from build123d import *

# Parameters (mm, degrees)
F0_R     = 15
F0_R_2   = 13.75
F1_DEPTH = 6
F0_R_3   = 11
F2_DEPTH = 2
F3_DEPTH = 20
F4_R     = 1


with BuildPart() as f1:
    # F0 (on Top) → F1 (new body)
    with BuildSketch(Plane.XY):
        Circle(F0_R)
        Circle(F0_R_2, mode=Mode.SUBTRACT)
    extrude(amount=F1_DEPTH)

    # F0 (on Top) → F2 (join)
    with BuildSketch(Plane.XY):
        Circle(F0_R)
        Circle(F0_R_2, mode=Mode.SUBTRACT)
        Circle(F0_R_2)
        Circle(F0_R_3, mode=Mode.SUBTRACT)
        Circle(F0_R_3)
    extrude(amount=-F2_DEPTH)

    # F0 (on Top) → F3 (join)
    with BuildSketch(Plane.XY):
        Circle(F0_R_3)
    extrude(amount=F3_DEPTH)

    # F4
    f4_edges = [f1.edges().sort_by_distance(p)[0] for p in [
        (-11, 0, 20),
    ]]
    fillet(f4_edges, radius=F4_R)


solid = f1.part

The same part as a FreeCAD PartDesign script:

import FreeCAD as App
import Part
import Sketcher

V = App.Vector
Q = App.Units.Quantity


def edges_at(feature, points):
    """Names of the edges that pass closest to the given points."""
    edges = feature.Shape.Edges
    near = lambda p: min(range(len(edges)), key=lambda i: edges[i].distToShape(Part.Vertex(*p))[0])
    return sorted({f"Edge{near(p) + 1}" for p in points})

doc = App.newDocument("Part")
body = doc.addObject("PartDesign::Body", "Body")

# Sketch on XY plane
sketch1 = body.newObject("Sketcher::SketchObject", "Sketch")
sketch1.AttachmentSupport = (doc.getObject("XY_Plane"), [""])
sketch1.MapMode = "FlatFace"
sketch1.addGeometry(Part.Circle(V(0, 0, 0), V(0, 0, 1), 15), False)
sketch1.addGeometry(Part.Circle(V(0, 0, 0), V(0, 0, 1), 14), False)
sketch1.addConstraint(Sketcher.Constraint("Coincident", 0, 3, -1, 1))
sketch1.addConstraint(Sketcher.Constraint("Coincident", 1, 3, -1, 1))
sketch1.addConstraint(Sketcher.Constraint("Diameter", 0, Q("30 mm")))
sketch1.addConstraint(Sketcher.Constraint("Diameter", 1, Q("27.5 mm")))
pad1 = body.newObject("PartDesign::Pad", "Pad")
pad1.Profile = sketch1
pad1.Length = 6

# Sketch on XY plane
sketch2 = body.newObject("Sketcher::SketchObject", "Sketch001")
sketch2.AttachmentSupport = (doc.getObject("XY_Plane"), [""])
sketch2.MapMode = "FlatFace"
sketch2.addGeometry(Part.Circle(V(0, 0, 0), V(0, 0, 1), 15), False)
sketch2.addConstraint(Sketcher.Constraint("Coincident", 0, 3, -1, 1))
sketch2.addConstraint(Sketcher.Constraint("Diameter", 0, Q("30 mm")))
pad2 = body.newObject("PartDesign::Pad", "Pad001")
pad2.Profile = sketch2
pad2.Length = 2
pad2.Reversed = True

# Sketch on XY plane
sketch3 = body.newObject("Sketcher::SketchObject", "Sketch002")
sketch3.AttachmentSupport = (doc.getObject("XY_Plane"), [""])
sketch3.MapMode = "FlatFace"
sketch3.addGeometry(Part.Circle(V(0, 0, 0), V(0, 0, 1), 11), False)
sketch3.addConstraint(Sketcher.Constraint("Coincident", 0, 3, -1, 1))
sketch3.addConstraint(Sketcher.Constraint("Diameter", 0, Q("22 mm")))
pad3 = body.newObject("PartDesign::Pad", "Pad002")
pad3.Profile = sketch3
pad3.Length = 20
doc.recompute()

fillet = body.newObject("PartDesign::Fillet", "Fillet")
fillet.Base = (pad3, edges_at(pad3, [(-11, 0, 20)]))
fillet.Radius = 1

doc.recompute()
